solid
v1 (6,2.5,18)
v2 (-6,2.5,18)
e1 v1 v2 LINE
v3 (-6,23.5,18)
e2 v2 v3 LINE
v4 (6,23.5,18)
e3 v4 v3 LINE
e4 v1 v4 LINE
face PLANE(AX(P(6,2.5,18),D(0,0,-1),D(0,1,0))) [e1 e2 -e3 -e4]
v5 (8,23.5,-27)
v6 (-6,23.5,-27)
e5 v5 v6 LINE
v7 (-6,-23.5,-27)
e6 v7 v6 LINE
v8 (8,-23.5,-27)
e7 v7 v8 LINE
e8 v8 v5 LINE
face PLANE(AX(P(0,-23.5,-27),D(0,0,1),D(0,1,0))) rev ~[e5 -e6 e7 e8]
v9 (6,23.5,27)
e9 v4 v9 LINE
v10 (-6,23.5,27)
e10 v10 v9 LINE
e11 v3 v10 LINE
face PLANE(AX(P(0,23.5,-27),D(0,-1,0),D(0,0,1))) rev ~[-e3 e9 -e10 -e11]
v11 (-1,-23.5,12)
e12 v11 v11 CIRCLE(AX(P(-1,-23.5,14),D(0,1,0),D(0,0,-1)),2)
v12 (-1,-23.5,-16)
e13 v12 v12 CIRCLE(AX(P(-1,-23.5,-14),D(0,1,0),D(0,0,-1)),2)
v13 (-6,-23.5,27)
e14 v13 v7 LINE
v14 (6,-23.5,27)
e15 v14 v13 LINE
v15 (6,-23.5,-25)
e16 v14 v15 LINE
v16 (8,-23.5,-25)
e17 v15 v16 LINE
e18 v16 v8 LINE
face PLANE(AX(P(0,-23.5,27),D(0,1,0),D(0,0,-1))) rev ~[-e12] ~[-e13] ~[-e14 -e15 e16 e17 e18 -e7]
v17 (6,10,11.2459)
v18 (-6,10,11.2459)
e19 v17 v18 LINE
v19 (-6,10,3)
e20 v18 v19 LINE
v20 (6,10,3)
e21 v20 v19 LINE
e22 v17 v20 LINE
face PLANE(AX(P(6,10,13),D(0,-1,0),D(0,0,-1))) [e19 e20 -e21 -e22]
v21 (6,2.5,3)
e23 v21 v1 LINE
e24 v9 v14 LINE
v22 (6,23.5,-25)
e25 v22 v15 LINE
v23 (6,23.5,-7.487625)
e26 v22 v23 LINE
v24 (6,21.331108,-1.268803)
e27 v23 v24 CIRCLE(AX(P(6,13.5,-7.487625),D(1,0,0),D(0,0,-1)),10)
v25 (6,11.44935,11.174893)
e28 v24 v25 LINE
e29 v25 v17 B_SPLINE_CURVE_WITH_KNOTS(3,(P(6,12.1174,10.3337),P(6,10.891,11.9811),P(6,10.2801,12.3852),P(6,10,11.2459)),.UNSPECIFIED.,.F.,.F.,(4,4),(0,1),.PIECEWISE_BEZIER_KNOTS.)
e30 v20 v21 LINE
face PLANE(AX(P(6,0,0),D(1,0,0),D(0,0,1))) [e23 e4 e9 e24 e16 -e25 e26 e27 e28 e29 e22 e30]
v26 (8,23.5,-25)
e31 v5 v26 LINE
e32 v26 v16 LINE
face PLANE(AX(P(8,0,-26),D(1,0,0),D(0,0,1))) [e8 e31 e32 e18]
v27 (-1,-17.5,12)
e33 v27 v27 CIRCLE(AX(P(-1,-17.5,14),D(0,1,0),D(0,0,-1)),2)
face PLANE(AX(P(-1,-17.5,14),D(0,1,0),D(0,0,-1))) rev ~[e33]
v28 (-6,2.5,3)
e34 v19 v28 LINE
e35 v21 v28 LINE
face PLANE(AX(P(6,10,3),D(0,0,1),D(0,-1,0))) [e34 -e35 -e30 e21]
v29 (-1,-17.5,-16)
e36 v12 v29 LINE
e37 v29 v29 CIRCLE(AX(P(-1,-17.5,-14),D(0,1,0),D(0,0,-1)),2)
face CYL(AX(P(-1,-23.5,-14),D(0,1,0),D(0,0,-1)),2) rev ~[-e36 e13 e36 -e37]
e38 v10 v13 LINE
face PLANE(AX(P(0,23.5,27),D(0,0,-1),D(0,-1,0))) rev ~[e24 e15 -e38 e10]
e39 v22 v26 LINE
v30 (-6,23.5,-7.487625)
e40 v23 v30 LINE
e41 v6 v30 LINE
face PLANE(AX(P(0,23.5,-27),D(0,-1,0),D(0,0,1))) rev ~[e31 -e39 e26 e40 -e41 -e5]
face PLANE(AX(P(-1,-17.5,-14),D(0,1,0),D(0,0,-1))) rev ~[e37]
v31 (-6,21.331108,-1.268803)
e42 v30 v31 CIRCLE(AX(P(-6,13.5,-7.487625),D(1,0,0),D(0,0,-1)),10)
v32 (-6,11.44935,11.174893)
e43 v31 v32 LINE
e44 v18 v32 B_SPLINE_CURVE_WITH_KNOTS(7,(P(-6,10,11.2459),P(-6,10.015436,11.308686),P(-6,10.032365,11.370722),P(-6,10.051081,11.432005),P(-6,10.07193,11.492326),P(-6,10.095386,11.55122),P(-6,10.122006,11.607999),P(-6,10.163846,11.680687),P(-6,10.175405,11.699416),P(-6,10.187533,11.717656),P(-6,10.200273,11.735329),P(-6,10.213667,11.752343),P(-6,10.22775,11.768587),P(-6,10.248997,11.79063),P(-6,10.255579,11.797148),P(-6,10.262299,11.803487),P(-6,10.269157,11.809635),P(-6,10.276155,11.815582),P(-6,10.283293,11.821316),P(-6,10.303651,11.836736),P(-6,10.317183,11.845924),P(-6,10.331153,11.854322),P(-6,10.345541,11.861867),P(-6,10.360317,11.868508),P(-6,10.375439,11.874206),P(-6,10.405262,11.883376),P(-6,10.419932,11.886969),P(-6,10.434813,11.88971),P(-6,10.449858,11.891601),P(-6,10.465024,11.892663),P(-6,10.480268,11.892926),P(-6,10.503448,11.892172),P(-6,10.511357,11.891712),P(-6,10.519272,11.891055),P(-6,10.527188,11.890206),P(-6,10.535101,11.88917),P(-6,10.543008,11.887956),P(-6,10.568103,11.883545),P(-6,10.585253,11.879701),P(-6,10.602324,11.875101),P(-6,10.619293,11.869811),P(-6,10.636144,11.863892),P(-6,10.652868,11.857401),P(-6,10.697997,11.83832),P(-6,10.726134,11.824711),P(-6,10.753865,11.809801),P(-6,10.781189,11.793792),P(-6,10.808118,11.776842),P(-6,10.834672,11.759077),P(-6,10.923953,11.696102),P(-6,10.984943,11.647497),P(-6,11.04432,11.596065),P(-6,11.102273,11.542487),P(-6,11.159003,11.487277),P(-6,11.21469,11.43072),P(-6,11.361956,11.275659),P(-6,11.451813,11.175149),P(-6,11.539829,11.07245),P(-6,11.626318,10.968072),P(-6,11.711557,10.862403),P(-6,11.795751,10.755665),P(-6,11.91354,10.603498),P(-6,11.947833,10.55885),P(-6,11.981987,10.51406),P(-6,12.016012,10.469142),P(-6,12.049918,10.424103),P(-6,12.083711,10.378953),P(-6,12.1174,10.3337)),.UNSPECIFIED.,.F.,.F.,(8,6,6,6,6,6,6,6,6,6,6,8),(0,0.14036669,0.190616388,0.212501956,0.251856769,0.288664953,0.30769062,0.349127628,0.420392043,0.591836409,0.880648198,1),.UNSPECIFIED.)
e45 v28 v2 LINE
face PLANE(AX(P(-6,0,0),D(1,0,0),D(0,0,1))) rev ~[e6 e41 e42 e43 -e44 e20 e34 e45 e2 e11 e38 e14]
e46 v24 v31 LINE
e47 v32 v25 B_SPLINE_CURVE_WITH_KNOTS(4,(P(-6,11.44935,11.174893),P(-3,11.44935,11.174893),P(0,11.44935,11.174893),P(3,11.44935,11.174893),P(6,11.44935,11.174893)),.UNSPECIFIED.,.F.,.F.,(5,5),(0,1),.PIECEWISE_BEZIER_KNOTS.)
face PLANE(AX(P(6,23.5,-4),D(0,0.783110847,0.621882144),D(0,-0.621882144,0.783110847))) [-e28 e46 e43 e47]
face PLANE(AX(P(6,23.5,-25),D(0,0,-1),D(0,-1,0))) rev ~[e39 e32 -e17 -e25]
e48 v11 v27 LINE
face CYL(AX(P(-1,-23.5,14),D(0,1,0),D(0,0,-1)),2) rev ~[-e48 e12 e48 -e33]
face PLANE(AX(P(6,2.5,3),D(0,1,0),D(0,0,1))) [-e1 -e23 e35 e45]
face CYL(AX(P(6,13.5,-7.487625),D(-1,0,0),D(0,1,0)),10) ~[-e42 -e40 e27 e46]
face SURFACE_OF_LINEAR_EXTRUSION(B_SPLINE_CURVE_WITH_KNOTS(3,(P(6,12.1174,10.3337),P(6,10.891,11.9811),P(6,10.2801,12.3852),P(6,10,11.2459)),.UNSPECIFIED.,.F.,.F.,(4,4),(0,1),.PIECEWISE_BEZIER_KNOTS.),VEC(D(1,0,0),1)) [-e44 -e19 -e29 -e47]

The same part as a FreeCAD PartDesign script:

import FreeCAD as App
import Part
import Sketcher
Q = App.Units.Quantity


def edges_at(feature, points):
    """Names of the edges that pass closest to the given points."""
    edges = feature.Shape.Edges
    near = lambda p: min(range(len(edges)), key=lambda i: edges[i].distToShape(Part.Vertex(*p))[0])
    return sorted({f"Edge{near(p) + 1}" for p in points})

doc = App.newDocument("Part")
params = doc.addObject("Spreadsheet::Sheet", "Params")
for row, (alias, value) in enumerate([
    ("sketch1_height", "54 mm"),
    ("pad1_length", "12 mm"),
    ("sketch2_diameter", "4 mm"),
    ("hole_diameter", "4 mm"),
    ("hole_depth", "6 mm"),
    ("sketch3_diameter", "4 mm"),
    ("hole2_diameter", "4 mm"),
    ("hole2_depth", "6 mm"),
    ("sketch4_height", "10 mm"),
    ("sketch4_width", "21 mm"),
    ("sketch4_height2", "22 mm"),
    ("sketch4_height3", "15 mm"),
    ("pocket1_length", "135.5146 mm"),
    ("pocket2_length", "89.7467 mm"),
    ("fillet_radius", "10 mm"),
    ("sketch6_height", "2 mm"),
    ("pad2_length", "2 mm"),
], start=1):
    params.set(f"A{row}", alias)
    params.set(f"B{row}", "=" + value)
    params.setAlias(f"B{row}", alias)

body = doc.addObject("PartDesign::Body", "Body")

sketch1 = doc.addObject("Sketcher::SketchObject", "Sketch")
body.addObject(sketch1)
sketch1.AttachmentSupport = (doc.YZ_Plane, [""])
sketch1.MapMode = "FlatFace"
sketch1.addGeometry([
    Part.LineSegment(App.Vector(-24, 27, 0), App.Vector(-24, -27, 0)),
    Part.LineSegment(App.Vector(-24, -27, 0), App.Vector(24, -27, 0)),
    Part.LineSegment(App.Vector(24, -27, 0), App.Vector(24, 27, 0)),
    Part.LineSegment(App.Vector(24, 27, 0), App.Vector(-24, 27, 0)),
], False)
sketch1.addConstraint([
    Sketcher.Constraint("Coincident", 0, 2, 1, 1),
    Sketcher.Constraint("Coincident", 1, 2, 2, 1),
    Sketcher.Constraint("Coincident", 2, 2, 3, 1),
    Sketcher.Constraint("Coincident", 3, 2, 0, 1),
    Sketcher.Constraint("Vertical", 0),
    Sketcher.Constraint("Horizontal", 1),
    Sketcher.Constraint("Vertical", 2),
    Sketcher.Constraint("Horizontal", 3),
    Sketcher.Constraint("Symmetric", 0, 2, 2, 2, -1, 1),
    Sketcher.Constraint("DistanceX", 0, 2, -1, 1, 23.5),
    Sketcher.Constraint("DistanceY", 0, 2, 0, 1, 54.0),
])
sketch1.setExpression("Constraints[10]", "Params.sketch1_height")
pad1 = doc.addObject("PartDesign::Pad", "Pad")
body.addObject(pad1)
pad1.Profile = sketch1
pad1.setExpression("Length", "Params.pad1_length")
pad1.Midplane = True

sketch2 = doc.addObject("Sketcher::SketchObject", "Sketch001")
body.addObject(sketch2)
sketch2.AttachmentSupport = (doc.XZ_Plane, [""])
sketch2.MapMode = "FlatFace"
sketch2.AttachmentOffset = App.Placement(App.Vector(0, 0, 23.5), App.Rotation())
sketch2.addGeometry(Part.Circle(App.Vector(-1, 14, 0), App.Vector(0, 0, 1), 2), False)
sketch2.addConstraint([
    Sketcher.Constraint("Diameter", 0, 4.0),
    Sketcher.Constraint("DistanceX", 0, 3, -1, 1, 1.0),
    Sketcher.Constraint("DistanceY", -1, 1, 0, 3, 14.0),
])
sketch2.setExpression("Constraints[0]", "Params.sketch2_diameter")
doc.recompute()
hole = doc.addObject("PartDesign::Hole", "Hole")
body.addObject(hole)
hole.Profile = sketch2
hole.ThreadType = "None"
hole.setExpression("Diameter", "Params.hole_diameter")
hole.DepthType = "Dimension"
hole.setExpression("Depth", "Params.hole_depth")
hole.DrillPoint = "Flat"

sketch3 = doc.addObject("Sketcher::SketchObject", "Sketch002")
body.addObject(sketch3)
sketch3.AttachmentSupport = (doc.XZ_Plane, [""])
sketch3.MapMode = "FlatFace"
sketch3.AttachmentOffset = App.Placement(App.Vector(0, 0, 23.5), App.Rotation())
sketch3.addGeometry(Part.Circle(App.Vector(-1, -14, 0), App.Vector(0, 0, 1), 2), False)
sketch3.addConstraint([
    Sketcher.Constraint("Diameter", 0, 4.0),
    Sketcher.Constraint("DistanceX", 0, 3, -1, 1, 1.0),
    Sketcher.Constraint("DistanceY", 0, 3, -1, 1, 14.0),
])
sketch3.setExpression("Constraints[0]", "Params.sketch3_diameter")
doc.recompute()
hole2 = doc.addObject("PartDesign::Hole", "Hole001")
body.addObject(hole2)
hole2.Profile = sketch3
hole2.ThreadType = "None"
hole2.setExpression("Diameter", "Params.hole2_diameter")
hole2.DepthType = "Dimension"
hole2.setExpression("Depth", "Params.hole2_depth")
hole2.DrillPoint = "Flat"

sketch4 = doc.addObject("Sketcher::SketchObject", "Sketch003")
body.addObject(sketch4)
sketch4.AttachmentSupport = (doc.YZ_Plane, [""])
sketch4.MapMode = "FlatFace"
sketch4.AttachmentOffset = App.Placement(App.Vector(0, 0, 6), App.Rotation())
sketch4.addGeometry([
    Part.LineSegment(App.Vector(10, 13, 0), App.Vector(24, -4, 0)),
    Part.LineSegment(App.Vector(24, -4, 0), App.Vector(24, 18, 0)),
    Part.LineSegment(App.Vector(24, 18, 0), App.Vector(2, 18, 0)),
    Part.LineSegment(App.Vector(2, 18, 0), App.Vector(2, 3, 0)),
    Part.LineSegment(App.Vector(2, 3, 0), App.Vector(10, 3, 0)),
    Part.LineSegment(App.Vector(10, 3, 0), App.Vector(10, 13, 0)),
], False)
sketch4.addConstraint([
    Sketcher.Constraint("Coincident", 0, 2, 1, 1),
    Sketcher.Constraint("Coincident", 1, 2, 2, 1),
    Sketcher.Constraint("Coincident", 2, 2, 3, 1),
    Sketcher.Constraint("Coincident", 3, 2, 4, 1),
    Sketcher.Constraint("Coincident", 4, 2, 5, 1),
    Sketcher.Constraint("Coincident", 5, 2, 0, 1),
    Sketcher.Constraint("Vertical", 1),
    Sketcher.Constraint("Horizontal", 2),
    Sketcher.Constraint("Vertical", 3),
    Sketcher.Constraint("Horizontal", 4),
    Sketcher.Constraint("Vertical", 5),
    Sketcher.Constraint("DistanceY", 5, 1, 5, 2, 10.0),
    Sketcher.Constraint("DistanceX", -1, 1, 4, 2, 10.0),
    Sketcher.Constraint("DistanceX", -1, 1, 2, 2, 2.5),
    Sketcher.Constraint("DistanceX", 2, 2, 2, 1, 21.0),
    Sketcher.Constraint("DistanceY", 1, 1, 1, 2, 22.0),
    Sketcher.Constraint("DistanceY", 3, 2, 3, 1, 15.0),
    Sketcher.Constraint("DistanceY", 0, 2, -1, 1, 4.0),
])
sketch4.setExpression("Constraints[11]", "Params.sketch4_height")
sketch4.setExpression("Constraints[14]", "Params.sketch4_width")
sketch4.setExpression("Constraints[15]", "Params.sketch4_height2")
sketch4.setExpression("Constraints[16]", "Params.sketch4_height3")
pocket1 = doc.addObject("PartDesign::Pocket", "Pocket")
body.addObject(pocket1)
pocket1.Profile = sketch4
pocket1.setExpression("Length", "Params.pocket1_length")

sketch5 = doc.addObject("Sketcher::SketchObject", "Sketch004")
body.addObject(sketch5)
sketch5.AttachmentSupport = (doc.YZ_Plane, [""])
sketch5.MapMode = "FlatFace"
sketch5.AttachmentOffset = App.Placement(App.Vector(0, 0, 6), App.Rotation())
sketch5.addGeometry([
    Part.BSplineCurve([App.Vector(12.1174, 10.3337, 0), App.Vector(10.891, 11.9811, 0), App.Vector(10.2801, 12.3852, 0), App.Vector(10, 11.2459, 0)], [4, 4], [0, 1], False, 3, [1, 1, 1, 1], False),
    Part.LineSegment(App.Vector(12.1174, 10.3337, 0), App.Vector(12.1174, 14.0202, 0)),
    Part.LineSegment(App.Vector(12.1174, 14.0202, 0), App.Vector(9.0244, 13.5703, 0)),
    Part.LineSegment(App.Vector(9.0244, 13.5703, 0), App.Vector(10, 11.2459, 0)),
], False)
sketch5.addConstraint([
    Sketcher.Constraint("Block", 0),
    Sketcher.Constraint("Coincident", 0, 1, 1, 1),
    Sketcher.Constraint("Coincident", 1, 2, 2, 1),
    Sketcher.Constraint("Coincident", 2, 2, 3, 1),
    Sketcher.Constraint("Coincident", 3, 2, 0, 2),
    Sketcher.Constraint("Vertical", 1),
    Sketcher.Constraint("Angle", 3, Q("-67.2312 deg")),
    Sketcher.Constraint("DistanceY", 2, 2, 1, 2, 0.45),
    Sketcher.Constraint("DistanceY", 1, 1, 1, 2, 3.6865),
])
pocket2 = doc.addObject("PartDesign::Pocket", "Pocket001")
body.addObject(pocket2)
pocket2.Profile = sketch5
pocket2.setExpression("Length", "Params.pocket2_length")
pocket2.Midplane = True
doc.recompute()

fillet = doc.addObject("PartDesign::Fillet", "Fillet")
body.addObject(fillet)
fillet.Base = (pocket2, edges_at(pocket2, [(0, 23.5, -4)]))
fillet.setExpression("Radius", "Params.fillet_radius")

sketch6 = doc.addObject("Sketcher::SketchObject", "Sketch005")
body.addObject(sketch6)
sketch6.AttachmentSupport = (doc.YZ_Plane, [""])
sketch6.MapMode = "FlatFace"
sketch6.AttachmentOffset = App.Placement(App.Vector(0, 0, 6), App.Rotation())
sketch6.addGeometry([
    Part.LineSegment(App.Vector(-23.5, -25, 0), App.Vector(-23.5, -27, 0)),
    Part.LineSegment(App.Vector(-23.5, -27, 0), App.Vector(23.5, -27, 0)),
    Part.LineSegment(App.Vector(23.5, -27, 0), App.Vector(23.5, -25, 0)),
    Part.LineSegment(App.Vector(23.5, -25, 0), App.Vector(-23.5, -25, 0)),
], False)
sketch6.addConstraint([
    Sketcher.Constraint("Coincident", 0, 2, 1, 1),
    Sketcher.Constraint("Coincident", 1, 2, 2, 1),
    Sketcher.Constraint("Coincident", 2, 2, 3, 1),
    Sketcher.Constraint("Coincident", 3, 2, 0, 1),
    Sketcher.Constraint("Vertical", 0),
    Sketcher.Constraint("Horizontal", 1),
    Sketcher.Constraint("Vertical", 2),
    Sketcher.Constraint("Horizontal", 3),
    Sketcher.Constraint("DistanceX", 0, 2, -1, 1, 23.5),
    Sketcher.Constraint("DistanceX", -1, 1, 1, 2, 23.5),
    Sketcher.Constraint("DistanceY", 0, 2, 0, 1, 2.0),
    Sketcher.Constraint("DistanceY", 0, 2, -1, 1, 27.0),
])
sketch6.setExpression("Constraints[10]", "Params.sketch6_height")
pad2 = doc.addObject("PartDesign::Pad", "Pad001")
body.addObject(pad2)
pad2.Profile = sketch6
pad2.setExpression("Length", "Params.pad2_length")

doc.recompute()
